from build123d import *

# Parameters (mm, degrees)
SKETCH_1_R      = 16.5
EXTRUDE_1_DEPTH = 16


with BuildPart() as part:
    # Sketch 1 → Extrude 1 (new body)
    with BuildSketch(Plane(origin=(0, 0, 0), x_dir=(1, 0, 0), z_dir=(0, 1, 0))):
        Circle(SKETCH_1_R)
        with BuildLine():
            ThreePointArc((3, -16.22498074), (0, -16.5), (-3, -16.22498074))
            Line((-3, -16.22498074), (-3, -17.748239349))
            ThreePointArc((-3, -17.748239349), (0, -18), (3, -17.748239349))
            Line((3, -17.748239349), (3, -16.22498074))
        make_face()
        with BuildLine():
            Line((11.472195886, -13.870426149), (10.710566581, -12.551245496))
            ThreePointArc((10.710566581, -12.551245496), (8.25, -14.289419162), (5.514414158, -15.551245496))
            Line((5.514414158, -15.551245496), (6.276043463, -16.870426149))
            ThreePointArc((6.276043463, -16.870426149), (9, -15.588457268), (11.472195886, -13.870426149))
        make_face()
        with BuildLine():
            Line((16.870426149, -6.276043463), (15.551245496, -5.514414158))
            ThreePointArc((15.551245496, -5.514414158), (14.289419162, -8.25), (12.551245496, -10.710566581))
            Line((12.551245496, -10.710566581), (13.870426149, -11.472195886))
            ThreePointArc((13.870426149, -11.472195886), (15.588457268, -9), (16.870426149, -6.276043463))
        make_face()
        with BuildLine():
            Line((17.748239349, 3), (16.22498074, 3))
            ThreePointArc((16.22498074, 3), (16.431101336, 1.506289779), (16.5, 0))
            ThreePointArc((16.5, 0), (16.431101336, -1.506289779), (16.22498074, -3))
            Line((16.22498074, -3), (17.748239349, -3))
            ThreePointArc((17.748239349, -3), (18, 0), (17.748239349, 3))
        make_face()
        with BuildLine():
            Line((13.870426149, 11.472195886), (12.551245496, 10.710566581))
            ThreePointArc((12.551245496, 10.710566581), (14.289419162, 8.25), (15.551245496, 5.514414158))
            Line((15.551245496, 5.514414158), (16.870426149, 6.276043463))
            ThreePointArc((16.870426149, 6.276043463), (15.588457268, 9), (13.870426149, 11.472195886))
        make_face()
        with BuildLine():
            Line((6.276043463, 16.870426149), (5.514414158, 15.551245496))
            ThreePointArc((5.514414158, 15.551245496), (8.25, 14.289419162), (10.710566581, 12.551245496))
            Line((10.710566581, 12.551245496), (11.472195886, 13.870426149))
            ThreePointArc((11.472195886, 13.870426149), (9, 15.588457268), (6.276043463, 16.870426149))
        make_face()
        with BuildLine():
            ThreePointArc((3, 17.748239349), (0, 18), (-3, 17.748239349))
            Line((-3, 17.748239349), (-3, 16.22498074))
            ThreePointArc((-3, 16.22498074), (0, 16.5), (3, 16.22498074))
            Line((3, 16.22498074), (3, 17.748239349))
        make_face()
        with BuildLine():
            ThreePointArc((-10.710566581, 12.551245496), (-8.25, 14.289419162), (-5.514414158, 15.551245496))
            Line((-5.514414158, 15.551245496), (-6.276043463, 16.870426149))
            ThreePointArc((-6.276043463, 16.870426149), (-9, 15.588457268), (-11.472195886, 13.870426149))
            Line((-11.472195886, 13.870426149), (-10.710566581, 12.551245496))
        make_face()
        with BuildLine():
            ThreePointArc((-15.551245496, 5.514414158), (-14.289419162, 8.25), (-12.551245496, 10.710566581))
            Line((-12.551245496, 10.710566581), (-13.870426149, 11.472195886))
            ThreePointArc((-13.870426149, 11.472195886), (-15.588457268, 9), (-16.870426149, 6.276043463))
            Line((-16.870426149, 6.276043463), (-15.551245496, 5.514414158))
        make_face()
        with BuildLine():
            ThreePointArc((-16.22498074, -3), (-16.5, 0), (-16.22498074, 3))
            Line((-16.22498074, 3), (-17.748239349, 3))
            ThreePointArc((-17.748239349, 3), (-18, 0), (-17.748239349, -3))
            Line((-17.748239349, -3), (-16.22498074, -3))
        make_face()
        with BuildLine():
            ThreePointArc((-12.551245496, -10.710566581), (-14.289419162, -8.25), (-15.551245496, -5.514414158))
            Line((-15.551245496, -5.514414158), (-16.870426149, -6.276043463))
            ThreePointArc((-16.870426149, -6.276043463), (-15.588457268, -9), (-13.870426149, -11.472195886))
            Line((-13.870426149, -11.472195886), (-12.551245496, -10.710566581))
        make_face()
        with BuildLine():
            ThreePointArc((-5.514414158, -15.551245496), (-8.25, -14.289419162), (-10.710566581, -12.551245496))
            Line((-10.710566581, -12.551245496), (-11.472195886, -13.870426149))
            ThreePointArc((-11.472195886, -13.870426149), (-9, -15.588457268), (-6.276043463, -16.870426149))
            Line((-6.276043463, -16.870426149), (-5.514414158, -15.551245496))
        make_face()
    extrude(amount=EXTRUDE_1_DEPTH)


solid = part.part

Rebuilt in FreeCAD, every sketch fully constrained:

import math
import FreeCAD as App
import Part
import Sketcher
from FreeCAD import Vector
Q = App.Units.Quantity

doc = App.newDocument("Part")
body = doc.addObject("PartDesign::Body", "Body")

# Sketch on XZ plane
sketch1 = body.newObject("Sketcher::SketchObject", "Sketch")
sketch1.AttachmentSupport = (doc.getObject("XZ_Plane"), [""])
sketch1.MapMode = "FlatFace"
sketch1.addGeometry([
    Part.LineSegment(Vector(-3, 16.224981, 0), Vector(-3, 17.748239, 0)),  # 0
    Part.ArcOfCircle(Part.Circle(Vector(0, 0, 0), Vector(0, 0, 1), 18), math.radians(80.405932), math.radians(99.594068)),  # 1
    Part.LineSegment(Vector(3, 17.748239, 0), Vector(3, 16.224981, 0)),  # 2
    Part.ArcOfCircle(Part.Circle(Vector(0, 0, 0), Vector(0, 0, 1), 16.5), math.radians(70.475682), math.radians(79.524318)),  # 3
    Part.LineSegment(Vector(5.514414, 15.551245, 0), Vector(6.276043, 16.870426, 0)),  # 4
    Part.ArcOfCircle(Part.Circle(Vector(0, 0, 0), Vector(0, 0, 1), 18), math.radians(50.405932), math.radians(69.594068)),  # 5
    Part.LineSegment(Vector(11.472196, 13.870426, 0), Vector(10.710567, 12.551245, 0)),  # 6
    Part.ArcOfCircle(Part.Circle(Vector(0, 0, 0), Vector(0, 0, 1), 16.5), math.radians(40.475682), math.radians(49.524318)),  # 7
    Part.LineSegment(Vector(12.551245, 10.710567, 0), Vector(13.870426, 11.472196, 0)),  # 8
    Part.ArcOfCircle(Part.Circle(Vector(0, 0, 0), Vector(0, 0, 1), 18), math.radians(20.405932), math.radians(39.594068)),  # 9
    Part.LineSegment(Vector(16.870426, 6.276043, 0), Vector(15.551245, 5.514414, 0)),  # 10
    Part.ArcOfCircle(Part.Circle(Vector(0, 0, 0), Vector(0, 0, 1), 16.5), math.radians(10.475682), math.radians(19.524318)),  # 11
    Part.LineSegment(Vector(16.224981, 3, 0), Vector(17.748239, 3, 0)),  # 12
    Part.ArcOfCircle(Part.Circle(Vector(0, 0, 0), Vector(0, 0, 1), 18), math.radians(-9.594068), math.radians(9.594068)),  # 13
    Part.LineSegment(Vector(17.748239, -3, 0), Vector(16.224981, -3, 0)),  # 14
    Part.ArcOfCircle(Part.Circle(Vector(0, 0, 0), Vector(0, 0, 1), 16.5), math.radians(-19.524318), math.radians(-10.475682)),  # 15
    Part.LineSegment(Vector(15.551245, -5.514414, 0), Vector(16.870426, -6.276043, 0)),  # 16
    Part.ArcOfCircle(Part.Circle(Vector(0, 0, 0), Vector(0, 0, 1), 18), math.radians(-39.594068), math.radians(-20.405932)),  # 17
    Part.LineSegment(Vector(13.870426, -11.472196, 0), Vector(12.551245, -10.710567, 0)),  # 18
    Part.ArcOfCircle(Part.Circle(Vector(0, 0, 0), Vector(0, 0, 1), 16.5), math.radians(-49.524318), math.radians(-40.475682)),  # 19
    Part.LineSegment(Vector(10.710567, -12.551245, 0), Vector(11.472196, -13.870426, 0)),  # 20
    Part.ArcOfCircle(Part.Circle(Vector(0, 0, 0), Vector(0, 0, 1), 18), math.radians(-69.594068), math.radians(-50.405932)),  # 21
    Part.LineSegment(Vector(6.276043, -16.870426, 0), Vector(5.514414, -15.551245, 0)),  # 22
    Part.ArcOfCircle(Part.Circle(Vector(0, 0, 0), Vector(0, 0, 1), 16.5), math.radians(-79.524318), math.radians(-70.475682)),  # 23
    Part.LineSegment(Vector(3, -16.224981, 0), Vector(3, -17.748239, 0)),  # 24
    Part.ArcOfCircle(Part.Circle(Vector(0, 0, 0), Vector(0, 0, 1), 18), math.radians(-99.594068), math.radians(-80.405932)),  # 25
    Part.LineSegment(Vector(-3, -17.748239, 0), Vector(-3, -16.224981, 0)),  # 26
    Part.ArcOfCircle(Part.Circle(Vector(0, 0, 0), Vector(0, 0, 1), 16.5), math.radians(-109.524318), math.radians(-100.475682)),  # 27
    Part.LineSegment(Vector(-5.514414, -15.551245, 0), Vector(-6.276043, -16.870426, 0)),  # 28
    Part.ArcOfCircle(Part.Circle(Vector(0, 0, 0), Vector(0, 0, 1), 18), math.radians(-129.594068), math.radians(-110.405932)),  # 29
    Part.LineSegment(Vector(-11.472196, -13.870426, 0), Vector(-10.710567, -12.551245, 0)),  # 30
    Part.ArcOfCircle(Part.Circle(Vector(0, 0, 0), Vector(0, 0, 1), 16.5), math.radians(-139.524318), math.radians(-130.475682)),  # 31
    Part.LineSegment(Vector(-12.551245, -10.710567, 0), Vector(-13.870426, -11.472196, 0)),  # 32
    Part.ArcOfCircle(Part.Circle(Vector(0, 0, 0), Vector(0, 0, 1), 18), math.radians(-159.594068), math.radians(-140.405932)),  # 33
    Part.LineSegment(Vector(-16.870426, -6.276043, 0), Vector(-15.551245, -5.514414, 0)),  # 34
    Part.ArcOfCircle(Part.Circle(Vector(0, 0, 0), Vector(0, 0, 1), 16.5), math.radians(-169.524318), math.radians(-160.475682)),  # 35
    Part.LineSegment(Vector(-16.224981, -3, 0), Vector(-17.748239, -3, 0)),  # 36
    Part.ArcOfCircle(Part.Circle(Vector(0, 0, 0), Vector(0, 0, 1), 18), math.radians(170.405932), math.radians(189.594068)),  # 37
    Part.LineSegment(Vector(-17.748239, 3, 0), Vector(-16.224981, 3, 0)),  # 38
    Part.ArcOfCircle(Part.Circle(Vector(0, 0, 0), Vector(0, 0, 1), 16.5), math.radians(160.475682), math.radians(169.524318)),  # 39
    Part.LineSegment(Vector(-15.551245, 5.514414, 0), Vector(-16.870426, 6.276043, 0)),  # 40
    Part.ArcOfCircle(Part.Circle(Vector(0, 0, 0), Vector(0, 0, 1), 18), math.radians(140.405932), math.radians(159.594068)),  # 41
    Part.LineSegment(Vector(-13.870426, 11.472196, 0), Vector(-12.551245, 10.710567, 0)),  # 42
    Part.ArcOfCircle(Part.Circle(Vector(0, 0, 0), Vector(0, 0, 1), 16.5), math.radians(130.475682), math.radians(139.524318)),  # 43
    Part.LineSegment(Vector(-10.710567, 12.551245, 0), Vector(-11.472196, 13.870426, 0)),  # 44
    Part.ArcOfCircle(Part.Circle(Vector(0, 0, 0), Vector(0, 0, 1), 18), math.radians(110.405932), math.radians(129.594068)),  # 45
    Part.LineSegment(Vector(-6.276043, 16.870426, 0), Vector(-5.514414, 15.551245, 0)),  # 46
    Part.ArcOfCircle(Part.Circle(Vector(0, 0, 0), Vector(0, 0, 1), 16.5), math.radians(100.475682), math.radians(109.524318)),  # 47
], False)
sketch1.addConstraint([
    Sketcher.Constraint("Coincident", 0, 2, 1, 2),
    Sketcher.Constraint("Coincident", 1, 1, 2, 1),
    Sketcher.Constraint("Coincident", 2, 2, 3, 2),
    Sketcher.Constraint("Coincident", 3, 1, 4, 1),
    Sketcher.Constraint("Coincident", 4, 2, 5, 2),
    Sketcher.Constraint("Coincident", 5, 1, 6, 1),
    Sketcher.Constraint("Coincident", 6, 2, 7, 2),
    Sketcher.Constraint("Coincident", 7, 1, 8, 1),
    Sketcher.Constraint("Coincident", 8, 2, 9, 2),
    Sketcher.Constraint("Coincident", 9, 1, 10, 1),
    Sketcher.Constraint("Coincident", 10, 2, 11, 2),
    Sketcher.Constraint("Coincident", 11, 1, 12, 1),
    Sketcher.Constraint("Coincident", 12, 2, 13, 2),
    Sketcher.Constraint("Coincident", 13, 1, 14, 1),
    Sketcher.Constraint("Coincident", 14, 2, 15, 2),
    Sketcher.Constraint("Coincident", 15, 1, 16, 1),
    Sketcher.Constraint("Coincident", 16, 2, 17, 2),
    Sketcher.Constraint("Coincident", 17, 1, 18, 1),
    Sketcher.Constraint("Coincident", 18, 2, 19, 2),
    Sketcher.Constraint("Coincident", 19, 1, 20, 1),
    Sketcher.Constraint("Coincident", 20, 2, 21, 2),
    Sketcher.Constraint("Coincident", 21, 1, 22, 1),
    Sketcher.Constraint("Coincident", 22, 2, 23, 2),
    Sketcher.Constraint("Coincident", 23, 1, 24, 1),
    Sketcher.Constraint("Coincident", 24, 2, 25, 2),
    Sketcher.Constraint("Coincident", 25, 1, 26, 1),
    Sketcher.Constraint("Coincident", 26, 2, 27, 2),
    Sketcher.Constraint("Coincident", 27, 1, 28, 1),
    Sketcher.Constraint("Coincident", 28, 2, 29, 2),
    Sketcher.Constraint("Coincident", 29, 1, 30, 1),
    Sketcher.Constraint("Coincident", 30, 2, 31, 2),
    Sketcher.Constraint("Coincident", 31, 1, 32, 1),
    Sketcher.Constraint("Coincident", 32, 2, 33, 2),
    Sketcher.Constraint("Coincident", 33, 1, 34, 1),
    Sketcher.Constraint("Coincident", 34, 2, 35, 2),
    Sketcher.Constraint("Coincident", 35, 1, 36, 1),
    Sketcher.Constraint("Coincident", 36, 2, 37, 2),
    Sketcher.Constraint("Coincident", 37, 1, 38, 1),
    Sketcher.Constraint("Coincident", 38, 2, 39, 2),
    Sketcher.Constraint("Coincident", 39, 1, 40, 1),
    Sketcher.Constraint("Coincident", 40, 2, 41, 2),
    Sketcher.Constraint("Coincident", 41, 1, 42, 1),
    Sketcher.Constraint("Coincident", 42, 2, 43, 2),
    Sketcher.Constraint("Coincident", 43, 1, 44, 1),
    Sketcher.Constraint("Coincident", 44, 2, 45, 2),
    Sketcher.Constraint("Coincident", 45, 1, 46, 1),
    Sketcher.Constraint("Coincident", 46, 2, 47, 2),
    Sketcher.Constraint("Coincident", 47, 1, 0, 1),
    Sketcher.Constraint("Vertical", 0),
    Sketcher.Constraint("Vertical", 2),
    Sketcher.Constraint("Horizontal", 12),
    Sketcher.Constraint("Horizontal", 14),
    Sketcher.Constraint("Vertical", 24),
    Sketcher.Constraint("Vertical", 26),
    Sketcher.Constraint("Horizontal", 36),
    Sketcher.Constraint("Horizontal", 38),
    Sketcher.Constraint("Coincident", 1, 3, -1, 1),
    Sketcher.Constraint("Coincident", 3, 3, -1, 1),
    Sketcher.Constraint("Coincident", 5, 3, -1, 1),
    Sketcher.Constraint("Coincident", 7, 3, -1, 1),
    Sketcher.Constraint("Coincident", 9, 3, -1, 1),
    Sketcher.Constraint("Coincident", 11, 3, -1, 1),
    Sketcher.Constraint("Coincident", 13, 3, -1, 1),
    Sketcher.Constraint("Coincident", 15, 3, -1, 1),
    Sketcher.Constraint("Coincident", 17, 3, -1, 1),
    Sketcher.Constraint("Coincident", 19, 3, -1, 1),
    Sketcher.Constraint("Coincident", 21, 3, -1, 1),
    Sketcher.Constraint("Coincident", 23, 3, -1, 1),
    Sketcher.Constraint("Coincident", 25, 3, -1, 1),
    Sketcher.Constraint("Coincident", 27, 3, -1, 1),
    Sketcher.Constraint("Coincident", 29, 3, -1, 1),
    Sketcher.Constraint("Coincident", 31, 3, -1, 1),
    Sketcher.Constraint("Coincident", 33, 3, -1, 1),
    Sketcher.Constraint("Coincident", 35, 3, -1, 1),
    Sketcher.Constraint("Coincident", 37, 3, -1, 1),
    Sketcher.Constraint("Coincident", 39, 3, -1, 1),
    Sketcher.Constraint("Coincident", 41, 3, -1, 1),
    Sketcher.Constraint("Coincident", 43, 3, -1, 1),
    Sketcher.Constraint("Coincident", 45, 3, -1, 1),
    Sketcher.Constraint("Coincident", 47, 3, -1, 1),
    Sketcher.Constraint("Equal", 1, 5),
    Sketcher.Constraint("Equal", 3, 7),
    Sketcher.Constraint("Equal", 5, 9),
    Sketcher.Constraint("Equal", 7, 11),
    Sketcher.Constraint("Equal", 9, 13),
    Sketcher.Constraint("Equal", 11, 15),
    Sketcher.Constraint("Equal", 13, 17),
    Sketcher.Constraint("Equal", 15, 19),
    Sketcher.Constraint("Equal", 17, 21),
    Sketcher.Constraint("Equal", 19, 23),
    Sketcher.Constraint("Equal", 21, 25),
    Sketcher.Constraint("Equal", 23, 27),
    Sketcher.Constraint("Equal", 25, 29),
    Sketcher.Constraint("Equal", 27, 31),
    Sketcher.Constraint("Equal", 29, 33),
    Sketcher.Constraint("Equal", 31, 35),
    Sketcher.Constraint("Equal", 33, 37),
    Sketcher.Constraint("Equal", 35, 39),
    Sketcher.Constraint("Equal", 37, 41),
    Sketcher.Constraint("Equal", 39, 43),
    Sketcher.Constraint("Equal", 41, 45),
    Sketcher.Constraint("Equal", 43, 47),
    Sketcher.Constraint("Parallel", 4, 6),
    Sketcher.Constraint("Parallel", 8, 10),
    Sketcher.Constraint("Perpendicular", 6, 16),
    Sketcher.Constraint("Parallel", 16, 18),
    Sketcher.Constraint("Perpendicular", 10, 20),
    Sketcher.Constraint("Parallel", 20, 22),
    Sketcher.Constraint("Perpendicular", 18, 28),
    Sketcher.Constraint("Parallel", 28, 30),
    Sketcher.Constraint("Perpendicular", 22, 32),
    Sketcher.Constraint("Parallel", 32, 34),
    Sketcher.Constraint("Perpendicular", 30, 40),
    Sketcher.Constraint("Parallel", 40, 42),
    Sketcher.Constraint("Perpendicular", 34, 44),
    Sketcher.Constraint("Parallel", 44, 46),
    Sketcher.Constraint("Horizontal", 0, 2, 1, 1),
    Sketcher.Constraint("Horizontal", 24, 2, 25, 1),
    Sketcher.Constraint("Horizontal", 22, 2, 27, 1),
    Sketcher.Constraint("Horizontal", 21, 1, 28, 2),
    Sketcher.Constraint("Horizontal", 20, 2, 29, 1),
    Sketcher.Constraint("Horizontal", 18, 2, 31, 1),
    Sketcher.Constraint("Horizontal", 16, 2, 33, 1),
    Sketcher.Constraint("Horizontal", 14, 2, 35, 1),
    Sketcher.Constraint("Horizontal", 12, 2, 37, 1),
    Sketcher.Constraint("Horizontal", 10, 2, 39, 1),
    Sketcher.Constraint("Horizontal", 8, 2, 41, 1),
    Sketcher.Constraint("Horizontal", 6, 2, 43, 1),
    Sketcher.Constraint("Horizontal", 4, 2, 45, 1),
    Sketcher.Constraint("Vertical", 12, 2, 13, 1),
    Sketcher.Constraint("Vertical", 10, 2, 15, 1),
    Sketcher.Constraint("Vertical", 8, 2, 17, 1),
    Sketcher.Constraint("Vertical", 6, 2, 19, 1),
    Sketcher.Constraint("Vertical", 4, 2, 21, 1),
    Sketcher.Constraint("Vertical", 2, 2, 23, 1),
    Sketcher.Constraint("Equal", 38, 0),
    Sketcher.Constraint("Equal", 4, 6),
    Sketcher.Constraint("Equal", 6, 8),
    Sketcher.Constraint("Equal", 8, 10),
    Sketcher.Constraint("Radius", 1, Q("18 mm")),
    Sketcher.Constraint("Radius", 3, Q("16.5 mm")),
    Sketcher.Constraint("Angle", 4, Q("60 deg")),
    Sketcher.Constraint("DistanceX", 0, 2, -1, 1, Q("3 mm")),
    Sketcher.Constraint("DistanceX", -1, 1, 3, 1, Q("5.514414 mm")),
])
pad1 = body.newObject("PartDesign::Pad", "Pad")
pad1.Profile = sketch1
pad1.Length = 16
pad1.Reversed = True

doc.recompute()
